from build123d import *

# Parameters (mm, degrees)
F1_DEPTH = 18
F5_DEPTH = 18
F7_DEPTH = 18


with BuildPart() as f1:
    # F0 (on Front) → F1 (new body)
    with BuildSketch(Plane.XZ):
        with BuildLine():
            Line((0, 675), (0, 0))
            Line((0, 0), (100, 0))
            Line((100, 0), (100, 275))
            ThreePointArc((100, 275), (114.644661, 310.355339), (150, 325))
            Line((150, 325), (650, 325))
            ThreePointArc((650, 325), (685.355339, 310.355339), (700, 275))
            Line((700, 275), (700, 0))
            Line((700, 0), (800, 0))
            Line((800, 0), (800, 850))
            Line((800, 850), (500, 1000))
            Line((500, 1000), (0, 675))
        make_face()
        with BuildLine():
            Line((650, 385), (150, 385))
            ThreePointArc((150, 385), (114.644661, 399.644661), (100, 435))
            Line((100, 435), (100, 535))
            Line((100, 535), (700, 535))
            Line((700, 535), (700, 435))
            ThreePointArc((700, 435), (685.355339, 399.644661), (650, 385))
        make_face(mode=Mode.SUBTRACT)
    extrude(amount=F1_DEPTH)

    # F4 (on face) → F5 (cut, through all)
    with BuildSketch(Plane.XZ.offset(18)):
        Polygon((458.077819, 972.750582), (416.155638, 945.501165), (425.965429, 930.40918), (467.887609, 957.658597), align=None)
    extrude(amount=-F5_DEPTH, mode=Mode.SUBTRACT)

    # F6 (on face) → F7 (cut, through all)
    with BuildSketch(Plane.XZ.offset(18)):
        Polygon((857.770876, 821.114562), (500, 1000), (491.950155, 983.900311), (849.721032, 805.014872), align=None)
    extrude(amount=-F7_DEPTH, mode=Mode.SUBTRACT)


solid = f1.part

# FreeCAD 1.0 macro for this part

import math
import FreeCAD as App
import Part
import Sketcher

doc = App.newDocument("Part")
body = doc.addObject("PartDesign::Body", "Body")

sketch1 = doc.addObject("Sketcher::SketchObject", "Sketch")
body.addObject(sketch1)
sketch1.AttachmentSupport = (doc.XZ_Plane, [""])
sketch1.MapMode = "FlatFace"
sketch1.addGeometry(Part.LineSegment(App.Vector(0, 675, 0), App.Vector(0, 0, 0)), False)
sketch1.addGeometry(Part.LineSegment(App.Vector(0, 0, 0), App.Vector(100, 0, 0)), False)
sketch1.addGeometry(Part.LineSegment(App.Vector(100, 0, 0), App.Vector(100, 275, 0)), False)
sketch1.addGeometry(Part.ArcOfCircle(Part.Circle(App.Vector(150, 275, 0), App.Vector(0, 0, 1), 50), math.radians(90), math.radians(180)), False)
sketch1.addGeometry(Part.LineSegment(App.Vector(150, 325, 0), App.Vector(650, 325, 0)), False)
sketch1.addGeometry(Part.ArcOfCircle(Part.Circle(App.Vector(650, 275, 0), App.Vector(0, 0, 1), 50), math.radians(0), math.radians(90)), False)
sketch1.addGeometry(Part.LineSegment(App.Vector(700, 275, 0), App.Vector(700, 0, 0)), False)
sketch1.addGeometry(Part.LineSegment(App.Vector(700, 0, 0), App.Vector(800, 0, 0)), False)
sketch1.addGeometry(Part.LineSegment(App.Vector(800, 0, 0), App.Vector(800, 850, 0)), False)
sketch1.addGeometry(Part.LineSegment(App.Vector(800, 850, 0), App.Vector(500, 1000, 0)), False)
sketch1.addGeometry(Part.LineSegment(App.Vector(500, 1000, 0), App.Vector(0, 675, 0)), False)
sketch1.addGeometry(Part.ArcOfCircle(Part.Circle(App.Vector(650, 435, 0), App.Vector(0, 0, 1), 50), math.radians(-90), math.radians(0)), False)
sketch1.addGeometry(Part.LineSegment(App.Vector(650, 385, 0), App.Vector(150, 385, 0)), False)
sketch1.addGeometry(Part.ArcOfCircle(Part.Circle(App.Vector(150, 435, 0), App.Vector(0, 0, 1), 50), math.radians(-180), math.radians(-90)), False)
sketch1.addGeometry(Part.LineSegment(App.Vector(100, 435, 0), App.Vector(100, 535, 0)), False)
sketch1.addGeometry(Part.LineSegment(App.Vector(100, 535, 0), App.Vector(700, 535, 0)), False)
sketch1.addGeometry(Part.LineSegment(App.Vector(700, 535, 0), App.Vector(700, 435, 0)), False)
sketch1.addConstraint(Sketcher.Constraint("Coincident", 0, 2, 1, 1))
sketch1.addConstraint(Sketcher.Constraint("Coincident", 1, 2, 2, 1))
sketch1.addConstraint(Sketcher.Constraint("Tangent", 2, 2, 3, 2))
sketch1.addConstraint(Sketcher.Constraint("Tangent", 3, 1, 4, 1))
sketch1.addConstraint(Sketcher.Constraint("Tangent", 4, 2, 5, 2))
sketch1.addConstraint(Sketcher.Constraint("Tangent", 5, 1, 6, 1))
sketch1.addConstraint(Sketcher.Constraint("Coincident", 6, 2, 7, 1))
sketch1.addConstraint(Sketcher.Constraint("Coincident", 7, 2, 8, 1))
sketch1.addConstraint(Sketcher.Constraint("Coincident", 8, 2, 9, 1))
sketch1.addConstraint(Sketcher.Constraint("Coincident", 9, 2, 10, 1))
sketch1.addConstraint(Sketcher.Constraint("Coincident", 10, 2, 0, 1))
sketch1.addConstraint(Sketcher.Constraint("Tangent", 11, 1, 12, 1))
sketch1.addConstraint(Sketcher.Constraint("Tangent", 12, 2, 13, 2))
sketch1.addConstraint(Sketcher.Constraint("Tangent", 13, 1, 14, 1))
sketch1.addConstraint(Sketcher.Constraint("Coincident", 14, 2, 15, 1))
sketch1.addConstraint(Sketcher.Constraint("Coincident", 15, 2, 16, 1))
sketch1.addConstraint(Sketcher.Constraint("Tangent", 16, 2, 11, 2))
sketch1.addConstraint(Sketcher.Constraint("Vertical", 0))
sketch1.addConstraint(Sketcher.Constraint("Horizontal", 1))
sketch1.addConstraint(Sketcher.Constraint("Vertical", 2))
sketch1.addConstraint(Sketcher.Constraint("Horizontal", 4))
sketch1.addConstraint(Sketcher.Constraint("Vertical", 6))
sketch1.addConstraint(Sketcher.Constraint("Horizontal", 7))
sketch1.addConstraint(Sketcher.Constraint("Vertical", 8))
sketch1.addConstraint(Sketcher.Constraint("Horizontal", 12))
sketch1.addConstraint(Sketcher.Constraint("Vertical", 14))
sketch1.addConstraint(Sketcher.Constraint("Horizontal", 15))
sketch1.addConstraint(Sketcher.Constraint("Vertical", 16))
sketch1.addConstraint(Sketcher.Constraint("Coincident", 0, 2, -1, 1))
sketch1.addConstraint(Sketcher.Constraint("Equal", 3, 5))
sketch1.addConstraint(Sketcher.Constraint("Equal", 5, 11))
sketch1.addConstraint(Sketcher.Constraint("Equal", 11, 13))
sketch1.addConstraint(Sketcher.Constraint("PointOnObject", 6, 2, -1))
sketch1.addConstraint(Sketcher.Constraint("Vertical", 5, 3, 11, 3))
sketch1.addConstraint(Sketcher.Constraint("Vertical", 3, 3, 13, 3))
sketch1.addConstraint(Sketcher.Constraint("Equal", 1, 7))
sketch1.addConstraint(Sketcher.Constraint("Equal", 7, 14))
sketch1.addConstraint(Sketcher.Constraint("Radius", 3, 50.0))
sketch1.addConstraint(Sketcher.Constraint("DistanceX", 1, 1, 1, 2, 100.0))
sketch1.addConstraint(Sketcher.Constraint("DistanceX", 4, 1, 4, 2, 500.0))
sketch1.addConstraint(Sketcher.Constraint("DistanceY", 0, 2, 0, 1, 675.0))
sketch1.addConstraint(Sketcher.Constraint("DistanceY", 2, 1, 2, 2, 275.0))
sketch1.addConstraint(Sketcher.Constraint("DistanceY", 8, 1, 8, 2, 850.0))
sketch1.addConstraint(Sketcher.Constraint("DistanceY", -1, 1, 11, 3, 435.0))
sketch1.addConstraint(Sketcher.Constraint("DistanceX", -1, 1, 9, 2, 500.0))
sketch1.addConstraint(Sketcher.Constraint("DistanceY", -1, 1, 9, 2, 1000.0))
pad1 = doc.addObject("PartDesign::Pad", "Pad")
body.addObject(pad1)
pad1.Profile = sketch1
pad1.Length = 18

sketch2 = doc.addObject("Sketcher::SketchObject", "Sketch001")
body.addObject(sketch2)
sketch2.AttachmentSupport = (doc.XZ_Plane, [""])
sketch2.MapMode = "FlatFace"
sketch2.AttachmentOffset = App.Placement(App.Vector(0, 0, 18), App.Rotation())
sketch2.addGeometry(Part.LineSegment(App.Vector(458.077819, 972.750582, 0), App.Vector(416.155638, 945.501165, 0)), False)
sketch2.addGeometry(Part.LineSegment(App.Vector(416.155638, 945.501165, 0), App.Vector(425.965429, 930.40918, 0)), False)
sketch2.addGeometry(Part.LineSegment(App.Vector(425.965429, 930.40918, 0), App.Vector(467.887609, 957.658597, 0)), False)
sketch2.addGeometry(Part.LineSegment(App.Vector(467.887609, 957.658597, 0), App.Vector(458.077819, 972.750582, 0)), False)
sketch2.addConstraint(Sketcher.Constraint("Coincident", 0, 2, 1, 1))
sketch2.addConstraint(Sketcher.Constraint("Coincident", 1, 2, 2, 1))
sketch2.addConstraint(Sketcher.Constraint("Coincident", 2, 2, 3, 1))
sketch2.addConstraint(Sketcher.Constraint("Coincident", 3, 2, 0, 1))
sketch2.addConstraint(Sketcher.Constraint("Perpendicular", 0, 1))
sketch2.addConstraint(Sketcher.Constraint("Perpendicular", 1, 2))
sketch2.addConstraint(Sketcher.Constraint("Perpendicular", 2, 3))
sketch2.addConstraint(Sketcher.Constraint("Distance", 0, 50.0))
sketch2.addConstraint(Sketcher.Constraint("Distance", 1, 18.0))
sketch2.addConstraint(Sketcher.Constraint("DistanceX", -1, 1, 0, 2, 416.155638))
sketch2.addConstraint(Sketcher.Constraint("DistanceX", -1, 1, 1, 2, 425.965429))
sketch2.addConstraint(Sketcher.Constraint("DistanceY", -1, 1, 1, 2, 930.40918))
pocket1 = doc.addObject("PartDesign::Pocket", "Pocket")
body.addObject(pocket1)
pocket1.Profile = sketch2
pocket1.Type = "ThroughAll"

sketch3 = doc.addObject("Sketcher::SketchObject", "Sketch002")
body.addObject(sketch3)
sketch3.AttachmentSupport = (doc.XZ_Plane, [""])
sketch3.MapMode = "FlatFace"
sketch3.AttachmentOffset = App.Placement(App.Vector(0, 0, 18), App.Rotation())
sketch3.addGeometry(Part.LineSegment(App.Vector(857.770876, 821.114562, 0), App.Vector(500, 1000, 0)), False)
sketch3.addGeometry(Part.LineSegment(App.Vector(500, 1000, 0), App.Vector(491.950155, 983.900311, 0)), False)
sketch3.addGeometry(Part.LineSegment(App.Vector(491.950155, 983.900311, 0), App.Vector(849.721032, 805.014872, 0)), False)
sketch3.addGeometry(Part.LineSegment(App.Vector(849.721032, 805.014872, 0), App.Vector(857.770876, 821.114562, 0)), False)
sketch3.addConstraint(Sketcher.Constraint("Coincident", 0, 2, 1, 1))
sketch3.addConstraint(Sketcher.Constraint("Coincident", 1, 2, 2, 1))
sketch3.addConstraint(Sketcher.Constraint("Coincident", 2, 2, 3, 1))
sketch3.addConstraint(Sketcher.Constraint("Coincident", 3, 2, 0, 1))
sketch3.addConstraint(Sketcher.Constraint("Perpendicular", 0, 1))
sketch3.addConstraint(Sketcher.Constraint("Perpendicular", 1, 2))
sketch3.addConstraint(Sketcher.Constraint("Perpendicular", 2, 3))
sketch3.addConstraint(Sketcher.Constraint("Distance", 0, 400.0))
sketch3.addConstraint(Sketcher.Constraint("Distance", 1, 18.0))
sketch3.addConstraint(Sketcher.Constraint("DistanceX", -1, 1, 0, 2, 500.0))
sketch3.addConstraint(Sketcher.Constraint("DistanceY", -1, 1, 0, 2, 1000.0))
sketch3.addConstraint(Sketcher.Constraint("DistanceY", -1, 1, 1, 2, 983.900311))
pocket2 = doc.addObject("PartDesign::Pocket", "Pocket001")
body.addObject(pocket2)
pocket2.Profile = sketch3
pocket2.Type = "ThroughAll"

doc.recompute()
